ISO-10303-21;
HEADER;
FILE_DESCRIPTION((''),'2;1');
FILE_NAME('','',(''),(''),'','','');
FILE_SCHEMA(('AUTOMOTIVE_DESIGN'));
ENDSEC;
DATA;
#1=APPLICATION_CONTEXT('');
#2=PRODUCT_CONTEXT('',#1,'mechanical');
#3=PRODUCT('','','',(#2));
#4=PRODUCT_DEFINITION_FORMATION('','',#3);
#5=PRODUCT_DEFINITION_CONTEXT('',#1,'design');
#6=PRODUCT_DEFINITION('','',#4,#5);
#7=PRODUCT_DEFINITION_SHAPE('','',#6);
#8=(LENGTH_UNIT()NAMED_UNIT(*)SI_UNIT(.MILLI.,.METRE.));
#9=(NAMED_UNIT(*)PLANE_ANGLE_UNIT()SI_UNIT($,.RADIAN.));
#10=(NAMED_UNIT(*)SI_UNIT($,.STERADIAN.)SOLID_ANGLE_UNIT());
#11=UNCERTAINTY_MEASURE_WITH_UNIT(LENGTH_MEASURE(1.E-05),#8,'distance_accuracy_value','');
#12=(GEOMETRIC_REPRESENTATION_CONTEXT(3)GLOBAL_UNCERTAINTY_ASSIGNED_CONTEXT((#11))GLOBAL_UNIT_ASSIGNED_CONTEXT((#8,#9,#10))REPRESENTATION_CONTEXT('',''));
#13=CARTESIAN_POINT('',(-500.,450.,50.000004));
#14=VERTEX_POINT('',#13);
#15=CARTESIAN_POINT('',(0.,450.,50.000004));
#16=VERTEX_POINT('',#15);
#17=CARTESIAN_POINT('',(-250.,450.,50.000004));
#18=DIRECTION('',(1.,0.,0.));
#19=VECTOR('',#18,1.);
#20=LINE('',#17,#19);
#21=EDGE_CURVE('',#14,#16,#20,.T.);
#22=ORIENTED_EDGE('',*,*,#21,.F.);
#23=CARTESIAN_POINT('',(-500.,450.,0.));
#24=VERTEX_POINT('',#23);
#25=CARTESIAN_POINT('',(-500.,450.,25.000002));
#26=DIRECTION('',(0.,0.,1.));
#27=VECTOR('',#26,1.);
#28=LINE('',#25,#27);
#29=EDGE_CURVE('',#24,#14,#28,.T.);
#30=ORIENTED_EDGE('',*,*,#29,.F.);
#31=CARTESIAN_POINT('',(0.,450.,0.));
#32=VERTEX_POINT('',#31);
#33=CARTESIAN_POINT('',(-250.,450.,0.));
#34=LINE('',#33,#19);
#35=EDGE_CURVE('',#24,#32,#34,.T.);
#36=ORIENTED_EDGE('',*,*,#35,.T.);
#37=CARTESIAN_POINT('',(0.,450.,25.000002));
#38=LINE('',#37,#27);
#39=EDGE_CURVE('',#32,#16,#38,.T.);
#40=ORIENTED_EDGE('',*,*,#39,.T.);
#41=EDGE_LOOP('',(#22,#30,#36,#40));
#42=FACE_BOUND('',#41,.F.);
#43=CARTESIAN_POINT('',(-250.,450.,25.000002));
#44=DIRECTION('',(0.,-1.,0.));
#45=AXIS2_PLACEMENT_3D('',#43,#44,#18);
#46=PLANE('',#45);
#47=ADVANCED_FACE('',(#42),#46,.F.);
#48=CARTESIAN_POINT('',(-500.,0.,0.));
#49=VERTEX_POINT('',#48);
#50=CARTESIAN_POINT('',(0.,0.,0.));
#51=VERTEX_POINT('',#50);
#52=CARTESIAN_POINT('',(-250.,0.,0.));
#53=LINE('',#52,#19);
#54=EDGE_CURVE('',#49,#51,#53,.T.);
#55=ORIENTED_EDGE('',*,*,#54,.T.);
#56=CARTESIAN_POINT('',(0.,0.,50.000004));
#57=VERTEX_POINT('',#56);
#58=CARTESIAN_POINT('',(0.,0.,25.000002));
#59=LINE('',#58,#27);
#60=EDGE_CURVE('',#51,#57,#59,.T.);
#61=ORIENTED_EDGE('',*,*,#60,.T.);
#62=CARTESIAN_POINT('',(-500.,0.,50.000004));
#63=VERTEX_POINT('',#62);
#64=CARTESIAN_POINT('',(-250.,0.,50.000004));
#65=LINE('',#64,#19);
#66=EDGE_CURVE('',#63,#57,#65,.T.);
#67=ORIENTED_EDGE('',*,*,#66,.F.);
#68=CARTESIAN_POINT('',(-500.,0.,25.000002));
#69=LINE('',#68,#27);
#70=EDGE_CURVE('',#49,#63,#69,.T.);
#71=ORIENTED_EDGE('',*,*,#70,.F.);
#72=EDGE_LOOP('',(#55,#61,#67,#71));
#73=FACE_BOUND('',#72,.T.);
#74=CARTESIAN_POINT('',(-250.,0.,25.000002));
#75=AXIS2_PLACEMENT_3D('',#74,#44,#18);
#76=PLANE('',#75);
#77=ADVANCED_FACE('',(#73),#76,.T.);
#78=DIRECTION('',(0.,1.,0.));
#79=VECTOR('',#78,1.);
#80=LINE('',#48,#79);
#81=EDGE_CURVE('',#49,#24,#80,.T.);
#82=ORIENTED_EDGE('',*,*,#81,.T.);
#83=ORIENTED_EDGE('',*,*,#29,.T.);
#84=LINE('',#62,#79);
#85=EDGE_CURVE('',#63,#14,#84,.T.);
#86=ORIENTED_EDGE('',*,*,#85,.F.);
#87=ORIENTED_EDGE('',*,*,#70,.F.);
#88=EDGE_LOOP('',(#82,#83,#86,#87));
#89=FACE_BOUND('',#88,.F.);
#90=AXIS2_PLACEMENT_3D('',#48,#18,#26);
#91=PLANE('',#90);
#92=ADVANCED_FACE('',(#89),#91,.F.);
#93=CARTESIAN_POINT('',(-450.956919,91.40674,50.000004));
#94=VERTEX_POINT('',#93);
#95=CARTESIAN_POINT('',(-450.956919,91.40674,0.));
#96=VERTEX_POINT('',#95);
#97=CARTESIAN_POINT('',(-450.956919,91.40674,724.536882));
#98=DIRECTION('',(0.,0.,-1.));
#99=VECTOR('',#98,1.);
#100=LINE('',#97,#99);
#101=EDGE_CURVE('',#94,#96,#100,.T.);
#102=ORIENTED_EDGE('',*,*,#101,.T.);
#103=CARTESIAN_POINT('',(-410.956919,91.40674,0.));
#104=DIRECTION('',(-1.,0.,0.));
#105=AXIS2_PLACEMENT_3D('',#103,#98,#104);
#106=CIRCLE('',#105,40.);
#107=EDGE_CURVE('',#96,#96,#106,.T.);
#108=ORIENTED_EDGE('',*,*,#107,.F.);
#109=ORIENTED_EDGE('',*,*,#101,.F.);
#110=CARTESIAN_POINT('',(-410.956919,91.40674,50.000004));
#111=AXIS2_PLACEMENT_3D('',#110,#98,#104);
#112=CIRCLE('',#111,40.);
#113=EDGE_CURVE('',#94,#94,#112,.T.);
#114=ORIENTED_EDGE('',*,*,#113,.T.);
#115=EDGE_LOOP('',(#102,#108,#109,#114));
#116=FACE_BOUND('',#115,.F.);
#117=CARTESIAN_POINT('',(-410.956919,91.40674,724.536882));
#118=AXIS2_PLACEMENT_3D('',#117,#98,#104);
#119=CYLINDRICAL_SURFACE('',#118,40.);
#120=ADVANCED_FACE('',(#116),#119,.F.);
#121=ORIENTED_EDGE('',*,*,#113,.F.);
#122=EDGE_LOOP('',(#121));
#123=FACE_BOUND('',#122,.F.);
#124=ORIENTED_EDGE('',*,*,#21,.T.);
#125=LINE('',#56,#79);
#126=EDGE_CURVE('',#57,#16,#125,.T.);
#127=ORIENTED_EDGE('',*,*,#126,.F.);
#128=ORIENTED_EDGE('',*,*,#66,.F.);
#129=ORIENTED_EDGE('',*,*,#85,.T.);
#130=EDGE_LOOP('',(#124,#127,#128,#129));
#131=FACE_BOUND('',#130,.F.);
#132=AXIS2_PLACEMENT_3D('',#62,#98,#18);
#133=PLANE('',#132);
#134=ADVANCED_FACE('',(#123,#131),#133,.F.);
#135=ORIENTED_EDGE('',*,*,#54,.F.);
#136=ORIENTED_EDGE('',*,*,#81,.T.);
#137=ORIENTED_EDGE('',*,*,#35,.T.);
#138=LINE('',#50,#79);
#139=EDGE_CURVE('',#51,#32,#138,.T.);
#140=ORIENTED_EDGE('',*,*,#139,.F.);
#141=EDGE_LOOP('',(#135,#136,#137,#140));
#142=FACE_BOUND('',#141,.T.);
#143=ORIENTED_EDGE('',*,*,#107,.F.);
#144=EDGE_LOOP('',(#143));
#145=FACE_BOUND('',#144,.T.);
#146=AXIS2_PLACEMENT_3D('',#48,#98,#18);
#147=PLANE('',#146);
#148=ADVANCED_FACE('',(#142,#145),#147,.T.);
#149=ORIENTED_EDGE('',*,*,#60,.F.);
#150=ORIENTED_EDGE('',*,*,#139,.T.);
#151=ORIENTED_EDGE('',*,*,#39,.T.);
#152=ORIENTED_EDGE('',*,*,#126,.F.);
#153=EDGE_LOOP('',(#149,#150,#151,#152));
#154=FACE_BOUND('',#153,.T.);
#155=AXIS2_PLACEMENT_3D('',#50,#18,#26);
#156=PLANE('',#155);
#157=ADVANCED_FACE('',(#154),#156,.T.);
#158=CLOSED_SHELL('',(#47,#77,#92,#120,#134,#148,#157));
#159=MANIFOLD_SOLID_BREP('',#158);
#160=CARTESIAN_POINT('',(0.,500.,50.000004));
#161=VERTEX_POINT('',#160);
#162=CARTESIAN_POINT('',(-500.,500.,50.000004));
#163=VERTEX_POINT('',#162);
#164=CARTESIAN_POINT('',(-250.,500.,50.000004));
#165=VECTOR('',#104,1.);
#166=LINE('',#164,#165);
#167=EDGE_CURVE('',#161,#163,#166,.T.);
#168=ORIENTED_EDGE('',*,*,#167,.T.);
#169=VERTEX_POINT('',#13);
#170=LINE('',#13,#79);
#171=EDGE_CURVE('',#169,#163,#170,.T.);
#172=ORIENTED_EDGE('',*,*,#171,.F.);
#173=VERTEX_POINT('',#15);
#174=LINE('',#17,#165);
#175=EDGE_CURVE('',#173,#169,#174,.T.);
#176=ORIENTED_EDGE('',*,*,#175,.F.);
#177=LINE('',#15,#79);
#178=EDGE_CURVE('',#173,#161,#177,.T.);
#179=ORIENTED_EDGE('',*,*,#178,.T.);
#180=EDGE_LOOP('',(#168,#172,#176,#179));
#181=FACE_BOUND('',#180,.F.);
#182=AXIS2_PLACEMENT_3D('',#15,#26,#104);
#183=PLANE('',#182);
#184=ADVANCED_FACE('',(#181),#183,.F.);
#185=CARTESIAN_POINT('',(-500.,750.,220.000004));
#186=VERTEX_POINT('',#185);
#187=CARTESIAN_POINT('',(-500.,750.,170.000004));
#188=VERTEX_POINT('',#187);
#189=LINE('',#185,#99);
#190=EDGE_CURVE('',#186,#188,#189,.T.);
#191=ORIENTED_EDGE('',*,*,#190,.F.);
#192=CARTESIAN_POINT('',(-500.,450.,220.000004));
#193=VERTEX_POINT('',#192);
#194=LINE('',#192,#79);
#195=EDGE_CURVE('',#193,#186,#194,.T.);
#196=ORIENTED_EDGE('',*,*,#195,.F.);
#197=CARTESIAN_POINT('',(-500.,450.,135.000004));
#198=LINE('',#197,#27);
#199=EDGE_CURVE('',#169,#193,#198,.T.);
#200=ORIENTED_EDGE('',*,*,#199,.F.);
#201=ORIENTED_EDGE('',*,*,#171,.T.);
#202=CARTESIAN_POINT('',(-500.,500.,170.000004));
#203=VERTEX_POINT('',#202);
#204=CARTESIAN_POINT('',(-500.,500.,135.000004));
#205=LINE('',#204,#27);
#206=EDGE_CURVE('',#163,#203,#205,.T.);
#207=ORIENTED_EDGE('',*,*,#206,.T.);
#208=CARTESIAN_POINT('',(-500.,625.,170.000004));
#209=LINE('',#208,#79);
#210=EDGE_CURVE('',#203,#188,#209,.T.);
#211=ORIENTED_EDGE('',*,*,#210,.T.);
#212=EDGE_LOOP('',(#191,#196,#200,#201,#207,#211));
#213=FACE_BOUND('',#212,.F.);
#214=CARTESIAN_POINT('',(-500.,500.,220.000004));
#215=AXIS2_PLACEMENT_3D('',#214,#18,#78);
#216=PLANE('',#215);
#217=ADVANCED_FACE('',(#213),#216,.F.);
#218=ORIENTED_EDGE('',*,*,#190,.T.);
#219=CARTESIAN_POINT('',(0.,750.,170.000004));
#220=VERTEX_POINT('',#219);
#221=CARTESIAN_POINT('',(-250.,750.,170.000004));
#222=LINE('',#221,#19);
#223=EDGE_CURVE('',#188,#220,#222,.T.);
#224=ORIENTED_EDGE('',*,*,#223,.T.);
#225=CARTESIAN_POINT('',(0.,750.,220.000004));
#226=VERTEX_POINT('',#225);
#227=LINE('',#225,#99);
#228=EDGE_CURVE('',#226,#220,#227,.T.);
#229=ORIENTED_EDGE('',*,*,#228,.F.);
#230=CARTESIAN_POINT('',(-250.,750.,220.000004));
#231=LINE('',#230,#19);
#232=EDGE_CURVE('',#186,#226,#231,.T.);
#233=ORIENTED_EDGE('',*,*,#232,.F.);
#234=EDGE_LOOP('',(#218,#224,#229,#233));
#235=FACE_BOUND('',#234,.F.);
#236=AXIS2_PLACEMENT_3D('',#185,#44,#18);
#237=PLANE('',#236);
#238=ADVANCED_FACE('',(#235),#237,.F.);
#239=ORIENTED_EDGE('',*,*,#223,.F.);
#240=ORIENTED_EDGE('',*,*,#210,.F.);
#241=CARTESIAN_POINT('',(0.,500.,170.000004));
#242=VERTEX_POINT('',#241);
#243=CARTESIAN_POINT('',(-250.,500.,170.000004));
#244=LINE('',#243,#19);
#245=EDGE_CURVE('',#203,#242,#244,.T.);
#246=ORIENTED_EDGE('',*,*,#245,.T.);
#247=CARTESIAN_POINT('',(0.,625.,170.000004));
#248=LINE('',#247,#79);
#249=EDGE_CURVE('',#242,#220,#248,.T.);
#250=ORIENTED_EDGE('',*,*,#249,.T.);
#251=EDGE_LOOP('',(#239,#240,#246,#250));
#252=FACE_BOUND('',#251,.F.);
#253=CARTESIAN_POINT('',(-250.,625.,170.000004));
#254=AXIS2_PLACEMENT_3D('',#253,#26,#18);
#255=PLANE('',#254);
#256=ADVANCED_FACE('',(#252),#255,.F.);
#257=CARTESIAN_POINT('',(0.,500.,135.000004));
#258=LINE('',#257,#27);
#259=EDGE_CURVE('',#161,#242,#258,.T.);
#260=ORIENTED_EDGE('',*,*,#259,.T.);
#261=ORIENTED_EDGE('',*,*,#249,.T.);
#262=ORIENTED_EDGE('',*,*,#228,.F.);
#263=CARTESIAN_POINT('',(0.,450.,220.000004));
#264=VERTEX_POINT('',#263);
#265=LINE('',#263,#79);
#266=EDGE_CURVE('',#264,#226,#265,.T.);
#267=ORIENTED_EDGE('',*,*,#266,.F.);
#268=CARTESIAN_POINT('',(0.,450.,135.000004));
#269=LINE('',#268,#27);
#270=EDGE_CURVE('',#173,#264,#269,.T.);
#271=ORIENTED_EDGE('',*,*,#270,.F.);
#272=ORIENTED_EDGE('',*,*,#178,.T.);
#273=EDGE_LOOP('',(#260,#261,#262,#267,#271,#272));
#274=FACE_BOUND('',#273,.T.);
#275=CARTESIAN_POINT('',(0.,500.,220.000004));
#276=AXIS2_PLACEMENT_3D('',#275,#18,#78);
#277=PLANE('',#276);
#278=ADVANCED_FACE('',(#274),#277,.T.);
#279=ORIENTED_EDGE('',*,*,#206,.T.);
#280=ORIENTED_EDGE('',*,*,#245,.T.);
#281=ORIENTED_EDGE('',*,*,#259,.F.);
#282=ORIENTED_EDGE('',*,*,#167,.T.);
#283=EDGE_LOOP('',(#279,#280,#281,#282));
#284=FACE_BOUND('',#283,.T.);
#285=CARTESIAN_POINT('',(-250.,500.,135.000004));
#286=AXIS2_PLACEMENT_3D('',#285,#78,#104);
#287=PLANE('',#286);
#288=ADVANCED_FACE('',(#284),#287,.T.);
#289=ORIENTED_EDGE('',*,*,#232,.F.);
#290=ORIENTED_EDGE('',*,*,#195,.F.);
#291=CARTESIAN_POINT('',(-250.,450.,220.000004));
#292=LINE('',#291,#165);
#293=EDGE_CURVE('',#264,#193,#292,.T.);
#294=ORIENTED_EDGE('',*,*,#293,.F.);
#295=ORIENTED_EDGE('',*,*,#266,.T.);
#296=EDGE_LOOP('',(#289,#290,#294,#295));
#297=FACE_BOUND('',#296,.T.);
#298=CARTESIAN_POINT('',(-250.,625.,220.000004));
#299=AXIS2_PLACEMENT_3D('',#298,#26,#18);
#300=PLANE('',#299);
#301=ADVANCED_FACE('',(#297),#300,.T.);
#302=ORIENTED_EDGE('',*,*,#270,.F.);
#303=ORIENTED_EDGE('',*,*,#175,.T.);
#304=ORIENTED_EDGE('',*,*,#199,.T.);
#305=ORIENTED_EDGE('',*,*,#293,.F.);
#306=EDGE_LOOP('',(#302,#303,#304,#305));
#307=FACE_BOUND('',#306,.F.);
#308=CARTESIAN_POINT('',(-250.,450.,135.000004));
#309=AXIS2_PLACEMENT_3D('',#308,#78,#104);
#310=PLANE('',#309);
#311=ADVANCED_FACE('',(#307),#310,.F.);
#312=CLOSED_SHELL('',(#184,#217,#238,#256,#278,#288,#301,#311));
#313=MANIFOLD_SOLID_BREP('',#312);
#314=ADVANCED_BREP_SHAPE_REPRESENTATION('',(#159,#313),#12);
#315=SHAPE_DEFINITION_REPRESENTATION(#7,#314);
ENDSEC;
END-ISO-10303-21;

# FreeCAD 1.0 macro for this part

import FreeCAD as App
import Part
import Sketcher
from FreeCAD import Vector
Q = App.Units.Quantity

doc = App.newDocument("Part")
body = doc.addObject("PartDesign::Body", "Body")

sketch1 = doc.addObject("Sketcher::SketchObject", "Sketch")
body.addObject(sketch1)
sketch1.AttachmentSupport = (doc.XZ_Plane, [""])
sketch1.MapMode = "FlatFace"
sketch1.addGeometry([
    Part.LineSegment(Vector(-500, 50.000004, 0), Vector(-500, 0, 0)),
    Part.LineSegment(Vector(-500, 0, 0), Vector(0, 0, 0)),
    Part.LineSegment(Vector(0, 0, 0), Vector(0, 50.000004, 0)),
    Part.LineSegment(Vector(0, 50.000004, 0), Vector(-500, 50.000004, 0)),
], False)
sketch1.addConstraint([
    Sketcher.Constraint("Coincident", 0, 2, 1, 1),
    Sketcher.Constraint("Coincident", 1, 2, 2, 1),
    Sketcher.Constraint("Coincident", 2, 2, 3, 1),
    Sketcher.Constraint("Coincident", 3, 2, 0, 1),
    Sketcher.Constraint("Vertical", 0),
    Sketcher.Constraint("Horizontal", 1),
    Sketcher.Constraint("Vertical", 2),
    Sketcher.Constraint("Horizontal", 3),
    Sketcher.Constraint("Coincident", 1, 2, -1, 1),
    Sketcher.Constraint("DistanceX", 1, 1, 1, 2, Q("500 mm")),
    Sketcher.Constraint("DistanceY", 0, 2, 0, 1, Q("50.000004 mm")),
])
pad1 = doc.addObject("PartDesign::Pad", "Pad")
body.addObject(pad1)
pad1.Profile = sketch1
pad1.Length = 450
pad1.Reversed = True

sketch2 = doc.addObject("Sketcher::SketchObject", "Sketch001")
body.addObject(sketch2)
sketch2.AttachmentSupport = (doc.XY_Plane, [""])
sketch2.MapMode = "FlatFace"
sketch2.AttachmentOffset = App.Placement(Vector(0, 0, 50.000004), App.Rotation())
sketch2.addGeometry(Part.Circle(Vector(-410.956919, 91.40674, 0), Vector(0, 0, 1), 40), False)
sketch2.addConstraint([
    Sketcher.Constraint("Diameter", 0, Q("80 mm")),
    Sketcher.Constraint("DistanceX", 0, 3, -1, 1, Q("410.956919 mm")),
    Sketcher.Constraint("DistanceY", -1, 1, 0, 3, Q("91.40674 mm")),
])
doc.recompute()
hole = doc.addObject("PartDesign::Hole", "Hole")
body.addObject(hole)
hole.Profile = sketch2
hole.ThreadType = "None"
hole.Diameter = 80
hole.DepthType = "ThroughAll"
body2 = doc.addObject("PartDesign::Body", "Body001")

sketch3 = doc.addObject("Sketcher::SketchObject", "Sketch002")
body2.addObject(sketch3)
sketch3.AttachmentSupport = (doc.getObject("XZ_Plane001"), [""])
sketch3.MapMode = "FlatFace"
sketch3.AttachmentOffset = App.Placement(Vector(0, 0, -450), App.Rotation())
sketch3.addGeometry([
    Part.LineSegment(Vector(0, 220.000004, 0), Vector(0, 50.000004, 0)),
    Part.LineSegment(Vector(0, 50.000004, 0), Vector(-500, 50.000004, 0)),
    Part.LineSegment(Vector(-500, 50.000004, 0), Vector(-500, 220.000004, 0)),
    Part.LineSegment(Vector(-500, 220.000004, 0), Vector(0, 220.000004, 0)),
], False)
sketch3.addConstraint([
    Sketcher.Constraint("Coincident", 0, 2, 1, 1),
    Sketcher.Constraint("Coincident", 1, 2, 2, 1),
    Sketcher.Constraint("Coincident", 2, 2, 3, 1),
    Sketcher.Constraint("Coincident", 3, 2, 0, 1),
    Sketcher.Constraint("Vertical", 0),
    Sketcher.Constraint("Horizontal", 1),
    Sketcher.Constraint("Vertical", 2),
    Sketcher.Constraint("Horizontal", 3),
    Sketcher.Constraint("PointOnObject", 0, 2, -2),
    Sketcher.Constraint("DistanceX", 1, 2, 1, 1, Q("500 mm")),
    Sketcher.Constraint("DistanceY", 0, 2, 0, 1, Q("170 mm")),
    Sketcher.Constraint("DistanceY", -1, 1, 0, 2, Q("50.000004 mm")),
])
pad2 = doc.addObject("PartDesign::Pad", "Pad001")
body2.addObject(pad2)
pad2.Profile = sketch3
pad2.Length = 50
pad2.Reversed = True

sketch4 = doc.addObject("Sketcher::SketchObject", "Sketch003")
body2.addObject(sketch4)
sketch4.AttachmentSupport = (doc.getObject("XY_Plane001"), [""])
sketch4.MapMode = "FlatFace"
sketch4.AttachmentOffset = App.Placement(Vector(0, 0, 220.000004), App.Rotation())
sketch4.addGeometry([
    Part.LineSegment(Vector(-500, 750, 0), Vector(-500, 500, 0)),
    Part.LineSegment(Vector(-500, 500, 0), Vector(0, 500, 0)),
    Part.LineSegment(Vector(0, 500, 0), Vector(0, 750, 0)),
    Part.LineSegment(Vector(0, 750, 0), Vector(-500, 750, 0)),
], False)
sketch4.addConstraint([
    Sketcher.Constraint("Coincident", 0, 2, 1, 1),
    Sketcher.Constraint("Coincident", 1, 2, 2, 1),
    Sketcher.Constraint("Coincident", 2, 2, 3, 1),
    Sketcher.Constraint("Coincident", 3, 2, 0, 1),
    Sketcher.Constraint("Vertical", 0),
    Sketcher.Constraint("Horizontal", 1),
    Sketcher.Constraint("Vertical", 2),
    Sketcher.Constraint("Horizontal", 3),
    Sketcher.Constraint("PointOnObject", 1, 2, -2),
    Sketcher.Constraint("DistanceX", 1, 1, 1, 2, Q("500 mm")),
    Sketcher.Constraint("DistanceY", 0, 2, 0, 1, Q("250 mm")),
    Sketcher.Constraint("DistanceY", -1, 1, 0, 2, Q("500 mm")),
])
pad3 = doc.addObject("PartDesign::Pad", "Pad002")
body2.addObject(pad3)
pad3.Profile = sketch4
pad3.Length = 50
pad3.Reversed = True

doc.recompute()
